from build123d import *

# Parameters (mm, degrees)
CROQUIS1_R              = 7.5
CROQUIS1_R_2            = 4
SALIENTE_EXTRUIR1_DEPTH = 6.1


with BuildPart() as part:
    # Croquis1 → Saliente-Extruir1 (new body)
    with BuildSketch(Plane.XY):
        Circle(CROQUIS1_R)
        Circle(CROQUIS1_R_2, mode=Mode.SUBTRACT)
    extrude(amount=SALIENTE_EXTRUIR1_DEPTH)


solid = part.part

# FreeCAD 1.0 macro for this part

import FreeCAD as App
import Part
import Sketcher

V = App.Vector
Q = App.Units.Quantity

doc = App.newDocument("Part")
params = doc.addObject("Spreadsheet::Sheet", "Params")
for row, (alias, value) in enumerate([
    ("sketch1_diameter", "15 mm"),
    ("sketch1_diameter2", "8 mm"),
    ("pad1_length", "6.1 mm"),
], start=1):
    params.set(f"A{row}", alias)
    params.set(f"B{row}", "=" + value)
    params.setAlias(f"B{row}", alias)

body = doc.addObject("PartDesign::Body", "Body")

sketch1 = body.newObject("Sketcher::SketchObject", "Sketch")
sketch1.AttachmentSupport = (doc.getObject("XY_Plane"), [""])
sketch1.MapMode = "FlatFace"
sketch1.addGeometry(Part.Circle(V(0, 0, 0), V(0, 0, 1), 7.5), False)
sketch1.addGeometry(Part.Circle(V(0, 0, 0), V(0, 0, 1), 4), False)
sketch1.addConstraint(Sketcher.Constraint("Coincident", 0, 3, -1, 1))
sketch1.addConstraint(Sketcher.Constraint("Coincident", 1, 3, -1, 1))
sketch1.addConstraint(Sketcher.Constraint("Diameter", 0, Q("15 mm")))
sketch1.addConstraint(Sketcher.Constraint("Diameter", 1, Q("8 mm")))
sketch1.setExpression("Constraints[2]", "Params.sketch1_diameter")
sketch1.setExpression("Constraints[3]", "Params.sketch1_diameter2")
pad1 = body.newObject("PartDesign::Pad", "Pad")
pad1.Profile = sketch1
pad1.setExpression("Length", "Params.pad1_length")

doc.recompute()
